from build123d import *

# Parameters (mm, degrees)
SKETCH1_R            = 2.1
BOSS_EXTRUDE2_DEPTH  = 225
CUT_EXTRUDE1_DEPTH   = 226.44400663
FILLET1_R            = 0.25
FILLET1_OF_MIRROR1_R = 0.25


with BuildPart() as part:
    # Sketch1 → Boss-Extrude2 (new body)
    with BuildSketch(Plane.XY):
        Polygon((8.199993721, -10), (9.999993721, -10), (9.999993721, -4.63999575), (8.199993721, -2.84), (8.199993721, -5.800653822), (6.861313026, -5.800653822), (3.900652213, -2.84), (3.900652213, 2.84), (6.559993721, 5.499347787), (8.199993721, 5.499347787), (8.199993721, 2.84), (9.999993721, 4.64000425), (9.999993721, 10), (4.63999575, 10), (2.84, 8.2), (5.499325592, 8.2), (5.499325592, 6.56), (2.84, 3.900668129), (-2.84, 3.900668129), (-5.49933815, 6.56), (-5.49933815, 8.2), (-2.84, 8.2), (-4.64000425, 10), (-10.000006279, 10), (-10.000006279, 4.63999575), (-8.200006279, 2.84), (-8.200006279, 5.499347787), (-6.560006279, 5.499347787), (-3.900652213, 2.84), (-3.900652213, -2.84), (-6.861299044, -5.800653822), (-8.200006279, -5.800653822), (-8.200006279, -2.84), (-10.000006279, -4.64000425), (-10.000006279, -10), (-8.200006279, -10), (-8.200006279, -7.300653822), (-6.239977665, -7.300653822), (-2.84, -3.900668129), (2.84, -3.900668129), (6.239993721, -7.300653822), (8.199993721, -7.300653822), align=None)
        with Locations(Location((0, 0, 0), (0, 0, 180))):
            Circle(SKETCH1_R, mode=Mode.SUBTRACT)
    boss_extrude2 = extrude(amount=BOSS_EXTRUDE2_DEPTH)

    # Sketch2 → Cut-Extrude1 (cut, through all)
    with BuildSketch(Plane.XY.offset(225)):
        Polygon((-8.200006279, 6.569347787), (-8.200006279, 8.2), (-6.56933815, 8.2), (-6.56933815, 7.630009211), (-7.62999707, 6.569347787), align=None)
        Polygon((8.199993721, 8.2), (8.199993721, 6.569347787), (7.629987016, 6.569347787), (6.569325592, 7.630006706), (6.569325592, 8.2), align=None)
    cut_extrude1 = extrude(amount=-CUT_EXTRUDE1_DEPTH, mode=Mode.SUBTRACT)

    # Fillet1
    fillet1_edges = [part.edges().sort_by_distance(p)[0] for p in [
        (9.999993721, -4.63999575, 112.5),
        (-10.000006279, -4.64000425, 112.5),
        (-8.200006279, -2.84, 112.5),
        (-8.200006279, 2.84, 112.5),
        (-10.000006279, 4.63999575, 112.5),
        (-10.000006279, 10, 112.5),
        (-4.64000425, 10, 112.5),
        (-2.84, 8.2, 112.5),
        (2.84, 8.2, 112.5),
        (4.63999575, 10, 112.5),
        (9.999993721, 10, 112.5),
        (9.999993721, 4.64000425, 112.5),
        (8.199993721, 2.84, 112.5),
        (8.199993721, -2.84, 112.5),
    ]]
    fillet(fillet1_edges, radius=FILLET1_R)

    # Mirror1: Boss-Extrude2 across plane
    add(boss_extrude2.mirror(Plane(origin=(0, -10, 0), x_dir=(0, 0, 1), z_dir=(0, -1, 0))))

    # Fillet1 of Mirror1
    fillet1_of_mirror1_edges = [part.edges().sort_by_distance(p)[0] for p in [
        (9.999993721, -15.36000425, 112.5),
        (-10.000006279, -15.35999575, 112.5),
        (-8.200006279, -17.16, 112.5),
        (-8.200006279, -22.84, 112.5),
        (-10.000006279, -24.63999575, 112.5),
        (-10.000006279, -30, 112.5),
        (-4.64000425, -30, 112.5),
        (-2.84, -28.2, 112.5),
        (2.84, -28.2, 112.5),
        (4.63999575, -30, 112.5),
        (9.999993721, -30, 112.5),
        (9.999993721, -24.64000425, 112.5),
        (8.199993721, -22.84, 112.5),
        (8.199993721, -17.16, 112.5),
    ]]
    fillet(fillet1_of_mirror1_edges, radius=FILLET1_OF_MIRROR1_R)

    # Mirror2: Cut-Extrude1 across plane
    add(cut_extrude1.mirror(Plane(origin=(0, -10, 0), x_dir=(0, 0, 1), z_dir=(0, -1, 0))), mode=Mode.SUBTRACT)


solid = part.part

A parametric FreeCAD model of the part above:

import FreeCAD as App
import Part
import Sketcher

V = App.Vector


def edges_at(feature, points):
    """Names of the edges that pass closest to the given points."""
    edges = feature.Shape.Edges
    near = lambda p: min(range(len(edges)), key=lambda i: edges[i].distToShape(Part.Vertex(*p))[0])
    return sorted({f"Edge{near(p) + 1}" for p in points})


def add_polygon(sketch, points):
    """Adds a closed chain of lines whose ends are joined by coincident constraints."""
    first, n = sketch.GeometryCount, len(points)
    for a, b in zip(points, points[1:] + points[:1]):
        sketch.addGeometry(Part.LineSegment(App.Vector(*a, 0), App.Vector(*b, 0)), False)
    for i in range(n):
        sketch.addConstraint(Sketcher.Constraint("Coincident", first + i, 2, first + (i + 1) % n, 1))

doc = App.newDocument("Part")
body = doc.addObject("PartDesign::Body", "Body")

# Sketch on XY plane
sketch1 = body.newObject("Sketcher::SketchObject", "Sketch")
sketch1.AttachmentSupport = (doc.getObject("XY_Plane"), [""])
sketch1.MapMode = "FlatFace"
add_polygon(sketch1, [(8.199994, -10), (9.999994, -10), (9.999994, -4.639996), (8.199994, -2.84), (8.199994, -5.800654), (6.861313, -5.800654), (3.900652, -2.84), (3.900652, 2.84), (6.559994, 5.499348), (8.199994, 5.499348), (8.199994, 2.84), (9.999994, 4.640004), (9.999994, 10), (4.639996, 10), (2.84, 8.2), (5.499326, 8.2), (5.499326, 6.56), (2.84, 3.900668), (-2.84, 3.900668), (-5.499338, 6.56), (-5.499338, 8.2), (-2.84, 8.2), (-4.640004, 10), (-10.000006, 10), (-10.000006, 4.639996), (-8.200006, 2.84), (-8.200006, 5.499348), (-6.560006, 5.499348), (-3.900652, 2.84), (-3.900652, -2.84), (-6.861299, -5.800654), (-8.200006, -5.800654), (-8.200006, -2.84), (-10.000006, -4.640004), (-10.000006, -10), (-8.200006, -10), (-8.200006, -7.300654), (-6.239978, -7.300654), (-2.84, -3.900668), (2.84, -3.900668), (6.239994, -7.300654), (8.199994, -7.300654)])  # lines 0-41
sketch1.addGeometry(Part.Circle(V(0, 0, 0), V(0, 0, 1), 2.1), False)  # 42
sketch1.addConstraint([
    Sketcher.Constraint("Horizontal", 0),
    Sketcher.Constraint("Vertical", 1),
    Sketcher.Constraint("Vertical", 3),
    Sketcher.Constraint("Horizontal", 4),
    Sketcher.Constraint("Vertical", 6),
    Sketcher.Constraint("Horizontal", 8),
    Sketcher.Constraint("Vertical", 9),
    Sketcher.Constraint("Vertical", 11),
    Sketcher.Constraint("Horizontal", 12),
    Sketcher.Constraint("Horizontal", 14),
    Sketcher.Constraint("Vertical", 15),
    Sketcher.Constraint("Horizontal", 17),
    Sketcher.Constraint("Vertical", 19),
    Sketcher.Constraint("Horizontal", 20),
    Sketcher.Constraint("Horizontal", 22),
    Sketcher.Constraint("Vertical", 23),
    Sketcher.Constraint("Vertical", 25),
    Sketcher.Constraint("Horizontal", 26),
    Sketcher.Constraint("Vertical", 28),
    Sketcher.Constraint("Horizontal", 30),
    Sketcher.Constraint("Vertical", 31),
    Sketcher.Constraint("Vertical", 33),
    Sketcher.Constraint("Horizontal", 34),
    Sketcher.Constraint("Vertical", 35),
    Sketcher.Constraint("Horizontal", 36),
    Sketcher.Constraint("Horizontal", 38),
    Sketcher.Constraint("Horizontal", 40),
    Sketcher.Constraint("Vertical", 41),
    Sketcher.Constraint("Coincident", 42, 3, -1, 1),
    Sketcher.Constraint("Diameter", 42, 4.2),
    Sketcher.Constraint("DistanceX", 0, 1, 0, 2, 1.8),
    Sketcher.Constraint("DistanceX", 34, 1, 34, 2, 1.8),
    Sketcher.Constraint("DistanceY", 0, 2, -1, 1, 10.0),
    Sketcher.Constraint("DistanceY", -1, 1, 11, 2, 10.0),
    Sketcher.Constraint("DistanceY", -1, 1, 21, 2, 10.0),
    Sketcher.Constraint("DistanceY", 33, 2, -1, 1, 10.0),
    Sketcher.Constraint("DistanceX", 8, 1, 8, 2, 1.64),
    Sketcher.Constraint("DistanceX", 17, 2, 17, 1, 5.68),
    Sketcher.Constraint("DistanceX", 26, 1, 26, 2, 1.64),
    Sketcher.Constraint("DistanceX", 38, 1, 38, 2, 5.68),
    Sketcher.Constraint("DistanceX", 40, 1, 40, 2, 1.96),
    Sketcher.Constraint("DistanceY", 6, 1, 6, 2, 5.68),
    Sketcher.Constraint("DistanceY", 15, 2, 15, 1, 1.64),
    Sketcher.Constraint("DistanceY", 19, 1, 19, 2, 1.64),
    Sketcher.Constraint("DistanceY", 28, 2, 28, 1, 5.68),
    Sketcher.Constraint("DistanceY", -1, 1, 13, 2, 8.2),
    Sketcher.Constraint("DistanceY", -1, 1, 19, 2, 8.2),
    Sketcher.Constraint("DistanceX", 2, 2, 1, 2, 1.8),
    Sketcher.Constraint("DistanceX", 8, 2, 10, 2, 1.8),
    Sketcher.Constraint("DistanceX", 2, 2, 10, 2, 1.8),
    Sketcher.Constraint("DistanceX", 23, 2, 24, 2, 1.8),
    Sketcher.Constraint("DistanceX", 32, 2, 30, 2, 1.8),
    Sketcher.Constraint("DistanceX", 32, 2, 24, 2, 1.8),
    Sketcher.Constraint("DistanceY", 35, 2, 30, 2, 1.5),
    Sketcher.Constraint("DistanceY", 39, 2, 4, 2, 1.5),
    Sketcher.Constraint("DistanceY", 2, 2, -1, 1, 2.84),
    Sketcher.Constraint("DistanceY", 5, 2, -1, 1, 2.84),
    Sketcher.Constraint("DistanceY", -1, 1, 9, 2, 2.84),
    Sketcher.Constraint("DistanceX", -1, 1, 13, 2, 2.84),
    Sketcher.Constraint("DistanceX", -1, 1, 16, 2, 2.84),
    Sketcher.Constraint("DistanceX", 20, 2, -1, 1, 2.84),
    Sketcher.Constraint("DistanceY", -1, 1, 24, 2, 2.84),
    Sketcher.Constraint("DistanceY", -1, 1, 27, 2, 2.84),
    Sketcher.Constraint("DistanceY", 31, 2, -1, 1, 2.84),
    Sketcher.Constraint("DistanceX", 37, 2, -1, 1, 2.84),
    Sketcher.Constraint("Distance", 5, 4.187002),
    Sketcher.Constraint("Distance", 37, 4.8083),
    Sketcher.Constraint("DistanceX", 4, 2, 4, 1, 1.338681),
    Sketcher.Constraint("DistanceX", 20, 1, 20, 2, 2.659338),
    Sketcher.Constraint("DistanceX", 36, 1, 36, 2, 1.960029),
    Sketcher.Constraint("DistanceX", 29, 2, -1, 1, 6.861299),
    Sketcher.Constraint("Distance", 2, 2.545581),
    Sketcher.Constraint("Distance", 7, 3.760881),
    Sketcher.Constraint("Distance", 13, 2.545581),
    Sketcher.Constraint("Distance", 16, 3.760859),
    Sketcher.Constraint("Distance", 24, 2.545581),
    Sketcher.Constraint("Distance", 27, 3.76089),
    Sketcher.Constraint("Distance", 29, 4.186992),
    Sketcher.Constraint("Distance", 39, 4.808312),
    Sketcher.Constraint("DistanceX", 12, 2, 12, 1, 5.359998),
    Sketcher.Constraint("DistanceX", 14, 1, 14, 2, 2.659326),
    Sketcher.Constraint("DistanceX", 22, 2, 22, 1, 5.360002),
    Sketcher.Constraint("DistanceX", 30, 2, 30, 1, 1.338707),
    Sketcher.Constraint("DistanceY", 3, 2, 3, 1, 2.960654),
    Sketcher.Constraint("DistanceY", 11, 1, 11, 2, 5.359996),
    Sketcher.Constraint("DistanceY", 33, 2, 33, 1, 5.359996),
])
pad1 = body.newObject("PartDesign::Pad", "Pad")
pad1.Profile = sketch1
pad1.Length = 225

# Sketch on XY plane
sketch2 = body.newObject("Sketcher::SketchObject", "Sketch001")
sketch2.AttachmentSupport = (doc.getObject("XY_Plane"), [""])
sketch2.MapMode = "FlatFace"
sketch2.AttachmentOffset = App.Placement(V(0, 0, 225), App.Rotation())
add_polygon(sketch2, [(-8.2, 8.2), (-8.2, 6.6), (-7.6, 6.6), (-6.6, 7.6), (-6.6, 8.2)])  # lines 0-4
add_polygon(sketch2, [(8.2, 6.6), (8.2, 8.2), (6.6, 8.2), (6.6, 7.6), (7.6, 6.6)])  # lines 5-9
sketch2.addConstraint([
    Sketcher.Constraint("Vertical", 0),
    Sketcher.Constraint("Horizontal", 1),
    Sketcher.Constraint("Vertical", 3),
    Sketcher.Constraint("Horizontal", 4),
    Sketcher.Constraint("Vertical", 5),
    Sketcher.Constraint("Horizontal", 6),
    Sketcher.Constraint("Vertical", 7),
    Sketcher.Constraint("Horizontal", 9),
    Sketcher.Constraint("Perpendicular", 2, 8),
    Sketcher.Constraint("Horizontal", 4, 2, 5, 2),
    Sketcher.Constraint("Horizontal", 1, 2, 8, 2),
    Sketcher.Constraint("Equal", 4, 6),
    Sketcher.Constraint("Equal", 2, 8),
    Sketcher.Constraint("Distance", 2, 1.5),
    Sketcher.Constraint("DistanceY", -1, 1, 3, 2, 8.2),
    Sketcher.Constraint("DistanceX", 4, 2, 5, 2, 16.4),
    Sketcher.Constraint("DistanceX", 1, 1, 1, 2, 0.570009),
    Sketcher.Constraint("DistanceX", 4, 2, 4, 1, 1.630668),
    Sketcher.Constraint("DistanceY", 3, 1, 3, 2, 0.569991),
    Sketcher.Constraint("DistanceX", 2, 2, -1, 1, 6.569338),
])
pocket1 = body.newObject("PartDesign::Pocket", "Pocket")
pocket1.Profile = sketch2
pocket1.Type = "ThroughAll"
doc.recompute()

fillet = body.newObject("PartDesign::Fillet", "Fillet")
fillet.Base = (pocket1, edges_at(pocket1, [
    (10, -4.64, 112.5),
    (-10, -4.64, 112.5),
    (-8.2, -2.84, 112.5),
    (-8.2, 2.84, 112.5),
    (-10, 4.64, 112.5),
    (-10, 10, 112.5),
    (-4.64, 10, 112.5),
    (-2.84, 8.2, 112.5),
    (2.84, 8.2, 112.5),
    (4.64, 10, 112.5),
    (10, 10, 112.5),
    (10, 4.64, 112.5),
    (8.2, 2.84, 112.5),
    (8.2, -2.84, 112.5),
]))
fillet.Radius = 0.25
doc.recompute()

datumplane = body.newObject("PartDesign::Plane", "DatumPlane")
datumplane.AttachmentSupport = (doc.getObject("XZ_Plane"), [""])
datumplane.MapMode = "FlatFace"
datumplane.AttachmentOffset = App.Placement(V(0, 0, 10), App.Rotation())
mirrored = body.newObject("PartDesign::Mirrored", "Mirrored")
mirrored.Originals = [pad1]
mirrored.MirrorPlane = (datumplane, [""])
body.Tip = mirrored
doc.recompute()

fillet2 = body.newObject("PartDesign::Fillet", "Fillet001")
fillet2.Base = (mirrored, edges_at(mirrored, [
    (10, -15.36, 112.5),
    (-10, -15.36, 112.5),
    (-8.2, -17.16, 112.5),
    (-8.2, -22.84, 112.5),
    (-10, -24.64, 112.5),
    (-10, -30, 112.5),
    (-4.64, -30, 112.5),
    (-2.84, -28.2, 112.5),
    (2.84, -28.2, 112.5),
    (4.64, -30, 112.5),
    (10, -30, 112.5),
    (10, -24.64, 112.5),
    (8.2, -22.84, 112.5),
    (8.2, -17.16, 112.5),
]))
fillet2.Radius = 0.25
doc.recompute()

datumplane2 = body.newObject("PartDesign::Plane", "DatumPlane001")
datumplane2.AttachmentSupport = (doc.getObject("XZ_Plane"), [""])
datumplane2.MapMode = "FlatFace"
datumplane2.AttachmentOffset = App.Placement(V(0, 0, 10), App.Rotation())
mirrored2 = body.newObject("PartDesign::Mirrored", "Mirrored001")
mirrored2.Originals = [pocket1]
mirrored2.MirrorPlane = (datumplane2, [""])
body.Tip = mirrored2

doc.recompute()
